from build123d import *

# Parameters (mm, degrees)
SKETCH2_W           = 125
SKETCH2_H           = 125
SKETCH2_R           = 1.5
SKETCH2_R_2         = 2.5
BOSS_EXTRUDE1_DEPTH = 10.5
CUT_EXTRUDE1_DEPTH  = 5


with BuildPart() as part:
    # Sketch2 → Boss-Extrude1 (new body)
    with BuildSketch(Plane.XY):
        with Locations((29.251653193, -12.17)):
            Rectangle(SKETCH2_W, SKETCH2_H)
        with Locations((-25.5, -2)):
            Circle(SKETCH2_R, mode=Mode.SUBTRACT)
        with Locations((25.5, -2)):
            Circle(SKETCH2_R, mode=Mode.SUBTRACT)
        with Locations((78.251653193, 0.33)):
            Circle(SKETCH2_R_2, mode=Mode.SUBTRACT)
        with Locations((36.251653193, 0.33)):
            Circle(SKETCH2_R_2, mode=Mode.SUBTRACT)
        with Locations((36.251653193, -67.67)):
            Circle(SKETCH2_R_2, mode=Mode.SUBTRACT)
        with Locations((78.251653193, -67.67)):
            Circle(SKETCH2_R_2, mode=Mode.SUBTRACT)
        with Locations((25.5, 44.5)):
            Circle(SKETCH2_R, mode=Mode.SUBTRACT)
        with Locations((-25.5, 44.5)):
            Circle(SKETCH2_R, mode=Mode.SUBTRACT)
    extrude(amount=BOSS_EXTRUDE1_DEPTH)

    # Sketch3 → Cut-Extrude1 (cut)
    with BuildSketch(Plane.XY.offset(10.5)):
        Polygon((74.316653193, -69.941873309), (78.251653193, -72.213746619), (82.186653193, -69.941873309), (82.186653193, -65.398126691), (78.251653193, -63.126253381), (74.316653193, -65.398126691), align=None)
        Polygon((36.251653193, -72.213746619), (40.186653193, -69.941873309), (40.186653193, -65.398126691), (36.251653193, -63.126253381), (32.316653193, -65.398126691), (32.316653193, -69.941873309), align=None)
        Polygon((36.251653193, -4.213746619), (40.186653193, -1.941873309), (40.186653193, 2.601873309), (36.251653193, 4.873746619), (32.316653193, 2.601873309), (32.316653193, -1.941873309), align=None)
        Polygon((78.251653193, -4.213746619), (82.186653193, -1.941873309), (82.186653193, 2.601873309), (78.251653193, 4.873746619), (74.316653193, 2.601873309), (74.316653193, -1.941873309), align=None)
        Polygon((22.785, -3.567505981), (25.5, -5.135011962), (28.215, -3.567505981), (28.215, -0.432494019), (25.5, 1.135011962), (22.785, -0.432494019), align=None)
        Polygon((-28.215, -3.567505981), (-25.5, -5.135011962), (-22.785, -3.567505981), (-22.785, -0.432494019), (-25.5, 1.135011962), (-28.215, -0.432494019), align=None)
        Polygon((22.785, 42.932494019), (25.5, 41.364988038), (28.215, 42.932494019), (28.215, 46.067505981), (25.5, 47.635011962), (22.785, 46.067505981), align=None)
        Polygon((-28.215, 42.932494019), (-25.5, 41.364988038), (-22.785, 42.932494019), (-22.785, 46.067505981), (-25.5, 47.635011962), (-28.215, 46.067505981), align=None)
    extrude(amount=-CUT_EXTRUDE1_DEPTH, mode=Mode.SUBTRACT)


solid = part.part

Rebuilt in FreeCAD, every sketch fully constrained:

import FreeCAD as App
import Part
import Sketcher
Q = App.Units.Quantity

doc = App.newDocument("Part")
body = doc.addObject("PartDesign::Body", "Body")

sketch1 = body.newObject("Sketcher::SketchObject", "Sketch")
sketch1.AttachmentSupport = (doc.getObject("XY_Plane"), [""])
sketch1.MapMode = "FlatFace"
sketch1.addGeometry([
    Part.LineSegment(App.Vector(-33.2, 50.3, 0), App.Vector(-33.2, -74.7, 0)),
    Part.LineSegment(App.Vector(-33.2, -74.7, 0), App.Vector(91.8, -74.7, 0)),
    Part.LineSegment(App.Vector(91.8, -74.7, 0), App.Vector(91.8, 50.3, 0)),
    Part.LineSegment(App.Vector(91.8, 50.3, 0), App.Vector(-33.2, 50.3, 0)),
    Part.Circle(App.Vector(36.3, -67.7, 0), App.Vector(0, 0, 1), 2.5),
    Part.Circle(App.Vector(78.3, -67.7, 0), App.Vector(0, 0, 1), 2.5),
    Part.Circle(App.Vector(-25.5, -2, 0), App.Vector(0, 0, 1), 1.5),
    Part.Circle(App.Vector(25.5, -2, 0), App.Vector(0, 0, 1), 1.5),
    Part.Circle(App.Vector(-25.5, 44.5, 0), App.Vector(0, 0, 1), 1.5),
    Part.Circle(App.Vector(25.5, 44.5, 0), App.Vector(0, 0, 1), 1.5),
    Part.Circle(App.Vector(36.3, 0.3, 0), App.Vector(0, 0, 1), 2.5),
    Part.Circle(App.Vector(78.3, 0.3, 0), App.Vector(0, 0, 1), 2.5),
], False)
sketch1.addConstraint([
    Sketcher.Constraint("Coincident", 0, 2, 1, 1),
    Sketcher.Constraint("Coincident", 1, 2, 2, 1),
    Sketcher.Constraint("Coincident", 2, 2, 3, 1),
    Sketcher.Constraint("Coincident", 3, 2, 0, 1),
    Sketcher.Constraint("Vertical", 0),
    Sketcher.Constraint("Horizontal", 1),
    Sketcher.Constraint("Vertical", 2),
    Sketcher.Constraint("Horizontal", 3),
    Sketcher.Constraint("Equal", 4, 5),
    Sketcher.Constraint("Equal", 6, 7),
    Sketcher.Constraint("Equal", 7, 8),
    Sketcher.Constraint("Equal", 8, 9),
    Sketcher.Constraint("Equal", 5, 10),
    Sketcher.Constraint("Equal", 10, 11),
    Sketcher.Constraint("Symmetric", 6, 3, 7, 3, -2),
    Sketcher.Constraint("Symmetric", 8, 3, 9, 3, -2),
    Sketcher.Constraint("Horizontal", 4, 3, 5, 3),
    Sketcher.Constraint("Horizontal", 10, 3, 11, 3),
    Sketcher.Constraint("Vertical", 6, 3, 8, 3),
    Sketcher.Constraint("Vertical", 4, 3, 10, 3),
    Sketcher.Constraint("Vertical", 5, 3, 11, 3),
    Sketcher.Constraint("Equal", 3, 0),
    Sketcher.Constraint("Diameter", 4, 5.0),
    Sketcher.Constraint("Diameter", 6, 3.0),
    Sketcher.Constraint("DistanceX", 1, 1, 1, 2, 125.0),
    Sketcher.Constraint("DistanceY", 6, 3, -1, 1, 2.0),
    Sketcher.Constraint("DistanceX", 4, 3, 5, 3, 42.0),
    Sketcher.Constraint("DistanceX", 6, 3, 7, 3, 51.0),
    Sketcher.Constraint("DistanceY", 4, 3, 10, 3, 68.0),
    Sketcher.Constraint("DistanceY", 0, 2, 4, 3, 7.0),
    Sketcher.Constraint("DistanceY", -1, 1, 8, 3, 44.5),
    Sketcher.Constraint("DistanceX", 0, 2, 4, 3, 69.5),
    Sketcher.Constraint("DistanceY", 4, 3, -1, 1, 67.67),
    Sketcher.Constraint("DistanceX", -1, 1, 4, 3, 36.251653),
])
pad1 = body.newObject("PartDesign::Pad", "Pad")
pad1.Profile = sketch1
pad1.Length = 10.5

sketch2 = body.newObject("Sketcher::SketchObject", "Sketch001")
sketch2.AttachmentSupport = (doc.getObject("XY_Plane"), [""])
sketch2.MapMode = "FlatFace"
sketch2.AttachmentOffset = App.Placement(App.Vector(0, 0, 10.5), App.Rotation())
sketch2.addGeometry([
    Part.LineSegment(App.Vector(74.3, -69.9, 0), App.Vector(78.3, -72.2, 0)),
    Part.LineSegment(App.Vector(78.3, -72.2, 0), App.Vector(82.2, -69.9, 0)),
    Part.LineSegment(App.Vector(82.2, -69.9, 0), App.Vector(82.2, -65.4, 0)),
    Part.LineSegment(App.Vector(82.2, -65.4, 0), App.Vector(78.3, -63.1, 0)),
    Part.LineSegment(App.Vector(78.3, -63.1, 0), App.Vector(74.3, -65.4, 0)),
    Part.LineSegment(App.Vector(74.3, -65.4, 0), App.Vector(74.3, -69.9, 0)),
    Part.LineSegment(App.Vector(36.3, -72.2, 0), App.Vector(40.2, -69.9, 0)),
    Part.LineSegment(App.Vector(40.2, -69.9, 0), App.Vector(40.2, -65.4, 0)),
    Part.LineSegment(App.Vector(40.2, -65.4, 0), App.Vector(36.3, -63.1, 0)),
    Part.LineSegment(App.Vector(36.3, -63.1, 0), App.Vector(32.3, -65.4, 0)),
    Part.LineSegment(App.Vector(32.3, -65.4, 0), App.Vector(32.3, -69.9, 0)),
    Part.LineSegment(App.Vector(32.3, -69.9, 0), App.Vector(36.3, -72.2, 0)),
    Part.LineSegment(App.Vector(36.3, -4.2, 0), App.Vector(40.2, -1.9, 0)),
    Part.LineSegment(App.Vector(40.2, -1.9, 0), App.Vector(40.2, 2.6, 0)),
    Part.LineSegment(App.Vector(40.2, 2.6, 0), App.Vector(36.3, 4.9, 0)),
    Part.LineSegment(App.Vector(36.3, 4.9, 0), App.Vector(32.3, 2.6, 0)),
    Part.LineSegment(App.Vector(32.3, 2.6, 0), App.Vector(32.3, -1.9, 0)),
    Part.LineSegment(App.Vector(32.3, -1.9, 0), App.Vector(36.3, -4.2, 0)),
    Part.LineSegment(App.Vector(78.3, -4.2, 0), App.Vector(82.2, -1.9, 0)),
    Part.LineSegment(App.Vector(82.2, -1.9, 0), App.Vector(82.2, 2.6, 0)),
    Part.LineSegment(App.Vector(82.2, 2.6, 0), App.Vector(78.3, 4.9, 0)),
    Part.LineSegment(App.Vector(78.3, 4.9, 0), App.Vector(74.3, 2.6, 0)),
    Part.LineSegment(App.Vector(74.3, 2.6, 0), App.Vector(74.3, -1.9, 0)),
    Part.LineSegment(App.Vector(74.3, -1.9, 0), App.Vector(78.3, -4.2, 0)),
    Part.LineSegment(App.Vector(22.8, -3.6, 0), App.Vector(25.5, -5.1, 0)),
    Part.LineSegment(App.Vector(25.5, -5.1, 0), App.Vector(28.2, -3.6, 0)),
    Part.LineSegment(App.Vector(28.2, -3.6, 0), App.Vector(28.2, -0.4, 0)),
    Part.LineSegment(App.Vector(28.2, -0.4, 0), App.Vector(25.5, 1.1, 0)),
    Part.LineSegment(App.Vector(25.5, 1.1, 0), App.Vector(22.8, -0.4, 0)),
    Part.LineSegment(App.Vector(22.8, -0.4, 0), App.Vector(22.8, -3.6, 0)),
    Part.LineSegment(App.Vector(-28.2, -3.6, 0), App.Vector(-25.5, -5.1, 0)),
    Part.LineSegment(App.Vector(-25.5, -5.1, 0), App.Vector(-22.8, -3.6, 0)),
    Part.LineSegment(App.Vector(-22.8, -3.6, 0), App.Vector(-22.8, -0.4, 0)),
    Part.LineSegment(App.Vector(-22.8, -0.4, 0), App.Vector(-25.5, 1.1, 0)),
    Part.LineSegment(App.Vector(-25.5, 1.1, 0), App.Vector(-28.2, -0.4, 0)),
    Part.LineSegment(App.Vector(-28.2, -0.4, 0), App.Vector(-28.2, -3.6, 0)),
    Part.LineSegment(App.Vector(22.8, 42.9, 0), App.Vector(25.5, 41.4, 0)),
    Part.LineSegment(App.Vector(25.5, 41.4, 0), App.Vector(28.2, 42.9, 0)),
    Part.LineSegment(App.Vector(28.2, 42.9, 0), App.Vector(28.2, 46.1, 0)),
    Part.LineSegment(App.Vector(28.2, 46.1, 0), App.Vector(25.5, 47.6, 0)),
    Part.LineSegment(App.Vector(25.5, 47.6, 0), App.Vector(22.8, 46.1, 0)),
    Part.LineSegment(App.Vector(22.8, 46.1, 0), App.Vector(22.8, 42.9, 0)),
    Part.LineSegment(App.Vector(-28.2, 42.9, 0), App.Vector(-25.5, 41.4, 0)),
    Part.LineSegment(App.Vector(-25.5, 41.4, 0), App.Vector(-22.8, 42.9, 0)),
    Part.LineSegment(App.Vector(-22.8, 42.9, 0), App.Vector(-22.8, 46.1, 0)),
    Part.LineSegment(App.Vector(-22.8, 46.1, 0), App.Vector(-25.5, 47.6, 0)),
    Part.LineSegment(App.Vector(-25.5, 47.6, 0), App.Vector(-28.2, 46.1, 0)),
    Part.LineSegment(App.Vector(-28.2, 46.1, 0), App.Vector(-28.2, 42.9, 0)),
], False)
sketch2.addConstraint([
    Sketcher.Constraint("Coincident", 0, 2, 1, 1),
    Sketcher.Constraint("Coincident", 1, 2, 2, 1),
    Sketcher.Constraint("Coincident", 2, 2, 3, 1),
    Sketcher.Constraint("Coincident", 3, 2, 4, 1),
    Sketcher.Constraint("Coincident", 4, 2, 5, 1),
    Sketcher.Constraint("Coincident", 5, 2, 0, 1),
    Sketcher.Constraint("Coincident", 6, 2, 7, 1),
    Sketcher.Constraint("Coincident", 7, 2, 8, 1),
    Sketcher.Constraint("Coincident", 8, 2, 9, 1),
    Sketcher.Constraint("Coincident", 9, 2, 10, 1),
    Sketcher.Constraint("Coincident", 10, 2, 11, 1),
    Sketcher.Constraint("Coincident", 11, 2, 6, 1),
    Sketcher.Constraint("Coincident", 12, 2, 13, 1),
    Sketcher.Constraint("Coincident", 13, 2, 14, 1),
    Sketcher.Constraint("Coincident", 14, 2, 15, 1),
    Sketcher.Constraint("Coincident", 15, 2, 16, 1),
    Sketcher.Constraint("Coincident", 16, 2, 17, 1),
    Sketcher.Constraint("Coincident", 17, 2, 12, 1),
    Sketcher.Constraint("Coincident", 18, 2, 19, 1),
    Sketcher.Constraint("Coincident", 19, 2, 20, 1),
    Sketcher.Constraint("Coincident", 20, 2, 21, 1),
    Sketcher.Constraint("Coincident", 21, 2, 22, 1),
    Sketcher.Constraint("Coincident", 22, 2, 23, 1),
    Sketcher.Constraint("Coincident", 23, 2, 18, 1),
    Sketcher.Constraint("Coincident", 24, 2, 25, 1),
    Sketcher.Constraint("Coincident", 25, 2, 26, 1),
    Sketcher.Constraint("Coincident", 26, 2, 27, 1),
    Sketcher.Constraint("Coincident", 27, 2, 28, 1),
    Sketcher.Constraint("Coincident", 28, 2, 29, 1),
    Sketcher.Constraint("Coincident", 29, 2, 24, 1),
    Sketcher.Constraint("Coincident", 30, 2, 31, 1),
    Sketcher.Constraint("Coincident", 31, 2, 32, 1),
    Sketcher.Constraint("Coincident", 32, 2, 33, 1),
    Sketcher.Constraint("Coincident", 33, 2, 34, 1),
    Sketcher.Constraint("Coincident", 34, 2, 35, 1),
    Sketcher.Constraint("Coincident", 35, 2, 30, 1),
    Sketcher.Constraint("Coincident", 36, 2, 37, 1),
    Sketcher.Constraint("Coincident", 37, 2, 38, 1),
    Sketcher.Constraint("Coincident", 38, 2, 39, 1),
    Sketcher.Constraint("Coincident", 39, 2, 40, 1),
    Sketcher.Constraint("Coincident", 40, 2, 41, 1),
    Sketcher.Constraint("Coincident", 41, 2, 36, 1),
    Sketcher.Constraint("Coincident", 42, 2, 43, 1),
    Sketcher.Constraint("Coincident", 43, 2, 44, 1),
    Sketcher.Constraint("Coincident", 44, 2, 45, 1),
    Sketcher.Constraint("Coincident", 45, 2, 46, 1),
    Sketcher.Constraint("Coincident", 46, 2, 47, 1),
    Sketcher.Constraint("Coincident", 47, 2, 42, 1),
    Sketcher.Constraint("Vertical", 2),
    Sketcher.Constraint("Vertical", 5),
    Sketcher.Constraint("Vertical", 7),
    Sketcher.Constraint("Vertical", 10),
    Sketcher.Constraint("Vertical", 13),
    Sketcher.Constraint("Vertical", 16),
    Sketcher.Constraint("Vertical", 19),
    Sketcher.Constraint("Vertical", 22),
    Sketcher.Constraint("Vertical", 26),
    Sketcher.Constraint("Vertical", 29),
    Sketcher.Constraint("Vertical", 32),
    Sketcher.Constraint("Vertical", 35),
    Sketcher.Constraint("Vertical", 38),
    Sketcher.Constraint("Vertical", 41),
    Sketcher.Constraint("Vertical", 44),
    Sketcher.Constraint("Vertical", 47),
    Sketcher.Constraint("Symmetric", 24, 2, 30, 2, -2),
    Sketcher.Constraint("Symmetric", 29, 2, 31, 2, -2),
    Sketcher.Constraint("Symmetric", 27, 2, 33, 2, -2),
    Sketcher.Constraint("Symmetric", 26, 2, 34, 2, -2),
    Sketcher.Constraint("Symmetric", 36, 2, 42, 2, -2),
    Sketcher.Constraint("Symmetric", 41, 2, 43, 2, -2),
    Sketcher.Constraint("Symmetric", 39, 2, 45, 2, -2),
    Sketcher.Constraint("Symmetric", 38, 2, 46, 2, -2),
    Sketcher.Constraint("Parallel", 0, 3),
    Sketcher.Constraint("Parallel", 1, 4),
    Sketcher.Constraint("Parallel", 4, 6),
    Sketcher.Constraint("Parallel", 3, 8),
    Sketcher.Constraint("Parallel", 6, 9),
    Sketcher.Constraint("Parallel", 8, 11),
    Sketcher.Constraint("Parallel", 9, 12),
    Sketcher.Constraint("Parallel", 11, 14),
    Sketcher.Constraint("Parallel", 12, 15),
    Sketcher.Constraint("Parallel", 14, 17),
    Sketcher.Constraint("Parallel", 15, 18),
    Sketcher.Constraint("Parallel", 17, 20),
    Sketcher.Constraint("Parallel", 18, 21),
    Sketcher.Constraint("Parallel", 20, 23),
    Sketcher.Constraint("Parallel", 23, 24),
    Sketcher.Constraint("Parallel", 21, 25),
    Sketcher.Constraint("Parallel", 24, 27),
    Sketcher.Constraint("Parallel", 25, 28),
    Sketcher.Constraint("Parallel", 27, 30),
    Sketcher.Constraint("Parallel", 28, 31),
    Sketcher.Constraint("Parallel", 30, 33),
    Sketcher.Constraint("Parallel", 33, 36),
    Sketcher.Constraint("Parallel", 34, 37),
    Sketcher.Constraint("Parallel", 36, 39),
    Sketcher.Constraint("Parallel", 37, 40),
    Sketcher.Constraint("Parallel", 39, 42),
    Sketcher.Constraint("Parallel", 42, 45),
    Sketcher.Constraint("Horizontal", 2, 2, 4, 2),
    Sketcher.Constraint("Horizontal", 1, 2, 5, 2),
    Sketcher.Constraint("Horizontal", 5, 2, 6, 2),
    Sketcher.Constraint("Horizontal", 4, 2, 7, 2),
    Sketcher.Constraint("Horizontal", 3, 2, 8, 2),
    Sketcher.Constraint("Horizontal", 7, 2, 9, 2),
    Sketcher.Constraint("Horizontal", 6, 2, 10, 2),
    Sketcher.Constraint("Horizontal", 13, 2, 15, 2),
    Sketcher.Constraint("Horizontal", 12, 2, 16, 2),
    Sketcher.Constraint("Horizontal", 16, 2, 18, 2),
    Sketcher.Constraint("Horizontal", 15, 2, 19, 2),
    Sketcher.Constraint("Horizontal", 14, 2, 20, 2),
    Sketcher.Constraint("Horizontal", 19, 2, 21, 2),
    Sketcher.Constraint("Horizontal", 18, 2, 22, 2),
    Sketcher.Constraint("Horizontal", 26, 2, 28, 2),
    Sketcher.Constraint("Horizontal", 25, 2, 29, 2),
    Sketcher.Constraint("Horizontal", 38, 2, 40, 2),
    Sketcher.Constraint("Horizontal", 37, 2, 41, 2),
    Sketcher.Constraint("Vertical", 7, 2, 12, 2),
    Sketcher.Constraint("Vertical", 11, 2, 14, 2),
    Sketcher.Constraint("Vertical", 2, 2, 18, 2),
    Sketcher.Constraint("Vertical", 27, 2, 36, 2),
    Sketcher.Constraint("Vertical", 26, 2, 37, 2),
    Sketcher.Constraint("Equal", 10, 13),
    Sketcher.Constraint("Equal", 35, 38),
    Sketcher.Constraint("Angle", 0, Q("-30 deg")),
    Sketcher.Constraint("DistanceX", 6, 2, 1, 2, 42.0),
    Sketcher.Constraint("DistanceY", 6, 2, 12, 2, 68.0),
    Sketcher.Constraint("DistanceX", 30, 2, 24, 2, 51.0),
    Sketcher.Constraint("DistanceY", 33, 2, 45, 2, 46.5),
    Sketcher.Constraint("DistanceX", 4, 2, 2, 2, 7.87),
    Sketcher.Constraint("DistanceX", 28, 2, 26, 2, 5.43),
    Sketcher.Constraint("DistanceY", 26, 1, 26, 2, 3.135012),
    Sketcher.Constraint("DistanceY", 2, 1, 2, 2, 4.543747),
    Sketcher.Constraint("DistanceY", 24, 2, -1, 1, 5.135012),
    Sketcher.Constraint("DistanceY", 24, 2, 16, 2, 3.193139),
    Sketcher.Constraint("DistanceX", -1, 1, 0, 2, 78.251653),
])
pocket1 = body.newObject("PartDesign::Pocket", "Pocket")
pocket1.Profile = sketch2
pocket1.Length = 5

doc.recompute()
